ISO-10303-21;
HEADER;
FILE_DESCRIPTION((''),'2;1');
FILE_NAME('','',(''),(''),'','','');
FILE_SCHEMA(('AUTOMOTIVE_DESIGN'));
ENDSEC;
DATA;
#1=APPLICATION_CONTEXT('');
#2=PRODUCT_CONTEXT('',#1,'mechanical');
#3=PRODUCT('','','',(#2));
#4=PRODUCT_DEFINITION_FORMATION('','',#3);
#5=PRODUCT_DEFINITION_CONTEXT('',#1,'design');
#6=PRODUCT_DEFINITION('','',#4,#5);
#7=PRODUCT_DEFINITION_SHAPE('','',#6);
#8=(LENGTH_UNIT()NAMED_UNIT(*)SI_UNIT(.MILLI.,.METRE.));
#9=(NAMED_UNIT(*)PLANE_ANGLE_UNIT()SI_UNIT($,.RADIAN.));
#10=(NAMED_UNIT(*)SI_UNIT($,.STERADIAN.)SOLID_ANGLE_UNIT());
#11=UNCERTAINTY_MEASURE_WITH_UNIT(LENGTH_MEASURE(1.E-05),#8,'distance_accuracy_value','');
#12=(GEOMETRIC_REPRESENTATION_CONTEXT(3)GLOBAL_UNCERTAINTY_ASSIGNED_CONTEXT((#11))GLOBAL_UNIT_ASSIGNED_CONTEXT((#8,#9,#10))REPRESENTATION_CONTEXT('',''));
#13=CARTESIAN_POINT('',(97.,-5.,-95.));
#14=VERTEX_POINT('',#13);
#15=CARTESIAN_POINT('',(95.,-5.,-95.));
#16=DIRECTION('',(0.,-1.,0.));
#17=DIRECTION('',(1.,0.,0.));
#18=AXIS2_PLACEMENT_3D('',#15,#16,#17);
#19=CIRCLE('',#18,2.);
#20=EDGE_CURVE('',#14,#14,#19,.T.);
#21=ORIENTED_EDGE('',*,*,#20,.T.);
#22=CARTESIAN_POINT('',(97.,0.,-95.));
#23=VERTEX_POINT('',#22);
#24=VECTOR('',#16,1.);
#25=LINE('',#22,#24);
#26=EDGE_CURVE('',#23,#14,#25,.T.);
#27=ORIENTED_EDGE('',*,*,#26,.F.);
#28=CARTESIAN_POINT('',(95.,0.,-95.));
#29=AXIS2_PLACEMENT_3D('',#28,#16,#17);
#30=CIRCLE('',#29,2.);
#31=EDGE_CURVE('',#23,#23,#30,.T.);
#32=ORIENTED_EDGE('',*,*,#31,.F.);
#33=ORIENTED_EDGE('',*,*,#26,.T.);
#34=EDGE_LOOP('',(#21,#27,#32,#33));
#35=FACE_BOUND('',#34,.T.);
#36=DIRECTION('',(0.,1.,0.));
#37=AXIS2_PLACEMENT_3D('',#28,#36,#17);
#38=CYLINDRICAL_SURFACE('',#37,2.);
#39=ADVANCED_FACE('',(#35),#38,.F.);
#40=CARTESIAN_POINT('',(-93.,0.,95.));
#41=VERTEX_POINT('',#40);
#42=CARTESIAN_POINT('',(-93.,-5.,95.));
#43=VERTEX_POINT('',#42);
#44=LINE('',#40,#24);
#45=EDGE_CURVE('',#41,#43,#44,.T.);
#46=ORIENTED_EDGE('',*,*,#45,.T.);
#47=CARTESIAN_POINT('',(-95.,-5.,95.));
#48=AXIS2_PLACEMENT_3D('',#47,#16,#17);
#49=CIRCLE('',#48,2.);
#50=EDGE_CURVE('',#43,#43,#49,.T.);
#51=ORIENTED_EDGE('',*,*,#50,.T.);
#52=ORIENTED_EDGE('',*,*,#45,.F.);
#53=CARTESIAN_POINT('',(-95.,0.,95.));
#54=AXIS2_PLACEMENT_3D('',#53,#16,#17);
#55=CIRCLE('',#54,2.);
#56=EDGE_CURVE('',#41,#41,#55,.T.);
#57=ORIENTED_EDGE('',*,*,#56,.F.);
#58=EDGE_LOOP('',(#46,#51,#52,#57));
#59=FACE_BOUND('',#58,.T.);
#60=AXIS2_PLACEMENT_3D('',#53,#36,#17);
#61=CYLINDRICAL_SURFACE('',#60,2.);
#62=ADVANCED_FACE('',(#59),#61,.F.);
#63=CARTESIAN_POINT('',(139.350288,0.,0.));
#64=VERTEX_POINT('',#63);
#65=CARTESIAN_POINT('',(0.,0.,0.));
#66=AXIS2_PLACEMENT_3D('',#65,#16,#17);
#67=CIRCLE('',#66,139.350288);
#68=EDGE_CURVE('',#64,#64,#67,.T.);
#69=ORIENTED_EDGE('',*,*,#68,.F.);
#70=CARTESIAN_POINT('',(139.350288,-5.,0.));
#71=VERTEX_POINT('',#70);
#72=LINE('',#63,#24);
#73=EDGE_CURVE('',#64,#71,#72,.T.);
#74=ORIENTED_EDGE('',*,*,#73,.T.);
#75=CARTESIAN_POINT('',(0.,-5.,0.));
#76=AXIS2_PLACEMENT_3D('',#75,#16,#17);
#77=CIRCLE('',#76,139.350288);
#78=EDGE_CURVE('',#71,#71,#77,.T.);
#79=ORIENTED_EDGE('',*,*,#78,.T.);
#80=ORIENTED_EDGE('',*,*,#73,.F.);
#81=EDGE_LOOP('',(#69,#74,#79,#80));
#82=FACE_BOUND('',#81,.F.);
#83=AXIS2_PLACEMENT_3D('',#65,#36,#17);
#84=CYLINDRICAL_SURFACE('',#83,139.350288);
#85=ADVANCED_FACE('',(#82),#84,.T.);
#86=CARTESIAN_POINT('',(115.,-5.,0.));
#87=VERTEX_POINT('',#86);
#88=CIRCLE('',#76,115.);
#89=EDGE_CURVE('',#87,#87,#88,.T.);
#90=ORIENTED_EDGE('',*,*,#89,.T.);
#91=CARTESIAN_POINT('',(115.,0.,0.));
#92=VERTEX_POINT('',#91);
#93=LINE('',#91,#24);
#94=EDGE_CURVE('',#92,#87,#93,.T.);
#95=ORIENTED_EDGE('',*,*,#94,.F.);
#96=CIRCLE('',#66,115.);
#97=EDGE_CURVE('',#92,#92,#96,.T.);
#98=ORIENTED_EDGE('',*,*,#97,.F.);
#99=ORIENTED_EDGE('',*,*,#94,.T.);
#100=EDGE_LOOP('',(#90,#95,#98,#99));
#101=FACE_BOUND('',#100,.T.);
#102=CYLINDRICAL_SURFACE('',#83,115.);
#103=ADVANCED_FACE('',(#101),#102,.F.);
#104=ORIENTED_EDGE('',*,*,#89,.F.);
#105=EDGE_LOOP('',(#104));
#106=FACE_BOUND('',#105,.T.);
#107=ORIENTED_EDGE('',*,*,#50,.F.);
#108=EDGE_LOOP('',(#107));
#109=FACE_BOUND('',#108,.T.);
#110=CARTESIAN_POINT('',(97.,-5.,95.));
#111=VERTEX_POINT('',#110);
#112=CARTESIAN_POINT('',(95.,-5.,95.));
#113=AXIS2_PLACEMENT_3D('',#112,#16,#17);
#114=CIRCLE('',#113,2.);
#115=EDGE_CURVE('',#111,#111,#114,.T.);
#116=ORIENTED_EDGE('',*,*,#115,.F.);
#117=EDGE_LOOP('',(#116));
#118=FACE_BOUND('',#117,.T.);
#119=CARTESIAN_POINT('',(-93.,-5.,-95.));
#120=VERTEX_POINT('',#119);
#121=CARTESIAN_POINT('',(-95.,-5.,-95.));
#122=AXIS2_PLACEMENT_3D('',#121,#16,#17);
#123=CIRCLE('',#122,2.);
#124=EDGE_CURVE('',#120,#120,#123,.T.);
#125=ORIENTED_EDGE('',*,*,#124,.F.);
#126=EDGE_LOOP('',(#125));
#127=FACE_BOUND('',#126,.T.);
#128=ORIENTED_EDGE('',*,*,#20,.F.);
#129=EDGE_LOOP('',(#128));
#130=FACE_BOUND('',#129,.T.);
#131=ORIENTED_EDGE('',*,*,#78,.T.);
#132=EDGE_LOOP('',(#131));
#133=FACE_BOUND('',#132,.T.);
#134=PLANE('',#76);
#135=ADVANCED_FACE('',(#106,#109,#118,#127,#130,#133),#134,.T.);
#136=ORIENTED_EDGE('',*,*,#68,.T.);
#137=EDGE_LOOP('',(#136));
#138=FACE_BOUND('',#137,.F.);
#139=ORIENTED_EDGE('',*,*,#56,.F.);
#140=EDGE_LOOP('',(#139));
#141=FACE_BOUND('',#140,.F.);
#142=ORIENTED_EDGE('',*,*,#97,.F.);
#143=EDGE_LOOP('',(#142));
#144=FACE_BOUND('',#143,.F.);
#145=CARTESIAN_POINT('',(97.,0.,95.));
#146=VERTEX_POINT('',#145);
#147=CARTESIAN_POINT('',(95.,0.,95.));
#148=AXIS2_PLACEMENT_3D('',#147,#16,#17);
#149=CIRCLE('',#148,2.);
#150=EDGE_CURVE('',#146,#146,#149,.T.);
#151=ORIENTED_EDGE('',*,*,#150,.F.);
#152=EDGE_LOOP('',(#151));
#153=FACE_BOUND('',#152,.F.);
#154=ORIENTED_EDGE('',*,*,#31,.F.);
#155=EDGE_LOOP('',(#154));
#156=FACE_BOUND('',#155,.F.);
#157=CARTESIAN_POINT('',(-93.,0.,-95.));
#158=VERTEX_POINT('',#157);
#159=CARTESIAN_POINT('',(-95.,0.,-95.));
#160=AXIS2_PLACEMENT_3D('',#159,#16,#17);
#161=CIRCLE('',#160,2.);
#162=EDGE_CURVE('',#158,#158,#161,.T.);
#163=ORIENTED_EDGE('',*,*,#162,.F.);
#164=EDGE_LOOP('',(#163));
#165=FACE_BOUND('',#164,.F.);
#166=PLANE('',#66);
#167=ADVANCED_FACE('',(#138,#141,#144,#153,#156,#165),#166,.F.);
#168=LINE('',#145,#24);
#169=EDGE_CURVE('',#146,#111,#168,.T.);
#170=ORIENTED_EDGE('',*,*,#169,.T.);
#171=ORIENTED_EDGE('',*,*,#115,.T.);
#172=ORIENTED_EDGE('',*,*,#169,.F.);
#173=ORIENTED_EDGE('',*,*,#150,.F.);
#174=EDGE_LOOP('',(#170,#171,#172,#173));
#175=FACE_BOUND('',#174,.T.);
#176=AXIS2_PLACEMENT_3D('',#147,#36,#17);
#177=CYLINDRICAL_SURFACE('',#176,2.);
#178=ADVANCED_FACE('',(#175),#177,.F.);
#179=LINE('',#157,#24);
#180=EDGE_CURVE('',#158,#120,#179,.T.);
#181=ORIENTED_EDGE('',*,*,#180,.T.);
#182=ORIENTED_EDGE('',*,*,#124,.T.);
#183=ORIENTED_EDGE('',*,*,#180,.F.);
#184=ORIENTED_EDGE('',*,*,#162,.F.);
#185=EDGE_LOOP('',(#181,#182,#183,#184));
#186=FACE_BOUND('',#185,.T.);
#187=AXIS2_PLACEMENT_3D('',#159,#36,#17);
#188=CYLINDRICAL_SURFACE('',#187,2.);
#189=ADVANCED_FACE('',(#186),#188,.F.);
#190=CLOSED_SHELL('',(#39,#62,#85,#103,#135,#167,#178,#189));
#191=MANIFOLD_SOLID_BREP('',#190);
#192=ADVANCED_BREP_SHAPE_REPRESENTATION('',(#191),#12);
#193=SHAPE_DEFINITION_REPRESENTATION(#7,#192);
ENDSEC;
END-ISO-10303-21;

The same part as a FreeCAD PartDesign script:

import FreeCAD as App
import Part
import Sketcher

V = App.Vector
Q = App.Units.Quantity

doc = App.newDocument("Part")
body = doc.addObject("PartDesign::Body", "Body")

sketch1 = body.newObject("Sketcher::SketchObject", "Sketch")
sketch1.AttachmentSupport = (doc.getObject("XZ_Plane"), [""])
sketch1.MapMode = "FlatFace"
sketch1.addGeometry([
    Part.Circle(V(0, 0, 0), V(0, 0, 1), 139.350288),
    Part.Circle(V(-95, -95, 0), V(0, 0, 1), 2),
    Part.Circle(V(95, -95, 0), V(0, 0, 1), 2),
    Part.Circle(V(-95, 95, 0), V(0, 0, 1), 2),
    Part.Circle(V(0, 0, 0), V(0, 0, 1), 115),
    Part.Circle(V(95, 95, 0), V(0, 0, 1), 2),
], False)
sketch1.addConstraint([
    Sketcher.Constraint("Coincident", 0, 3, -1, 1),
    Sketcher.Constraint("Coincident", 4, 3, -1, 1),
    Sketcher.Constraint("Equal", 1, 2),
    Sketcher.Constraint("Equal", 2, 3),
    Sketcher.Constraint("Equal", 3, 5),
    Sketcher.Constraint("Symmetric", 2, 3, 3, 3, -1, 1),
    Sketcher.Constraint("Symmetric", 1, 3, 5, 3, -1, 1),
    Sketcher.Constraint("Symmetric", 1, 3, 2, 3, -2),
    Sketcher.Constraint("Diameter", 1, Q("4 mm")),
    Sketcher.Constraint("Diameter", 4, Q("230 mm")),
    Sketcher.Constraint("DistanceX", 1, 3, -1, 1, Q("95 mm")),
    Sketcher.Constraint("DistanceY", 1, 3, -1, 1, Q("95 mm")),
    Sketcher.Constraint("Diameter", 0, Q("278.700576 mm")),
])
pad1 = body.newObject("PartDesign::Pad", "Pad")
pad1.Profile = sketch1
pad1.Length = 5

doc.recompute()
